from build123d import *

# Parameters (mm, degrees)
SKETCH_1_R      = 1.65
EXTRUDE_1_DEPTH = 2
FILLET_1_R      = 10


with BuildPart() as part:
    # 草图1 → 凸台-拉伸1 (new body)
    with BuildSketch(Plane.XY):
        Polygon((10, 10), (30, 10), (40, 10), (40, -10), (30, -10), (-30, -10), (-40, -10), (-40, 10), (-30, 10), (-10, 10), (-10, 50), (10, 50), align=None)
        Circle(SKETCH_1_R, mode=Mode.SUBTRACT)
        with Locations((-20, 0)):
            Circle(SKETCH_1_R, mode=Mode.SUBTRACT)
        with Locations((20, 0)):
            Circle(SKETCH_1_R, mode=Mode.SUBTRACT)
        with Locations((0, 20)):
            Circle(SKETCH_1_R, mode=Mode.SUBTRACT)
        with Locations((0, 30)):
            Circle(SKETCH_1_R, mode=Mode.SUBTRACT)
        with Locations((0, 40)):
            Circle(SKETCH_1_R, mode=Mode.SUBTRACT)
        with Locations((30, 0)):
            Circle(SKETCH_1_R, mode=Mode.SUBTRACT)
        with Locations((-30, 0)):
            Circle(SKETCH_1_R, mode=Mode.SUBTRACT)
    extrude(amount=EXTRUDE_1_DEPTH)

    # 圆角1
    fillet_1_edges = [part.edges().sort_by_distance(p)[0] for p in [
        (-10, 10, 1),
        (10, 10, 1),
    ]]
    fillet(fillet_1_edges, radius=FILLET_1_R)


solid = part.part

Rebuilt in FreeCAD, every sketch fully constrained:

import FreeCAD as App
import Part
import Sketcher
Q = App.Units.Quantity


def edges_at(feature, points):
    """Names of the edges that pass closest to the given points."""
    edges = feature.Shape.Edges
    near = lambda p: min(range(len(edges)), key=lambda i: edges[i].distToShape(Part.Vertex(*p))[0])
    return sorted({f"Edge{near(p) + 1}" for p in points})


def add_polygon(sketch, points):
    """Adds a closed chain of lines whose ends are joined by coincident constraints."""
    first, n = sketch.GeometryCount, len(points)
    for a, b in zip(points, points[1:] + points[:1]):
        sketch.addGeometry(Part.LineSegment(App.Vector(*a, 0), App.Vector(*b, 0)), False)
    for i in range(n):
        sketch.addConstraint(Sketcher.Constraint("Coincident", first + i, 2, first + (i + 1) % n, 1))

doc = App.newDocument("Part")
params = doc.addObject("Spreadsheet::Sheet", "Params")
for row, (alias, value) in enumerate([
    ("sketch1_diameter", "3.3 mm"),
    ("sketch1_width", "30 mm"),
    ("sketch1_width2", "20 mm"),
    ("sketch1_height", "40 mm"),
    ("pad1_length", "2 mm"),
    ("fillet_radius", "10 mm"),
], start=1):
    params.set(f"A{row}", alias)
    params.set(f"B{row}", "=" + value)
    params.setAlias(f"B{row}", alias)

body = doc.addObject("PartDesign::Body", "Body")

# Sketch on XY plane
sketch1 = body.newObject("Sketcher::SketchObject", "Sketch")
sketch1.AttachmentSupport = (doc.getObject("XY_Plane"), [""])
sketch1.MapMode = "FlatFace"
add_polygon(sketch1, [(40, 10), (10, 10), (10, 50), (-10, 50), (-10, 10), (-40, 10), (-40, -10), (40, -10)])  # lines 0-7
sketch1.addGeometry(Part.Circle(App.Vector(30, 0, 0), App.Vector(0, 0, 1), 1.65), False)  # 8
sketch1.addGeometry(Part.Circle(App.Vector(20, 0, 0), App.Vector(0, 0, 1), 1.65), False)  # 9
sketch1.addGeometry(Part.Circle(App.Vector(0, 0, 0), App.Vector(0, 0, 1), 1.65), False)  # 10
sketch1.addGeometry(Part.Circle(App.Vector(-20, 0, 0), App.Vector(0, 0, 1), 1.65), False)  # 11
sketch1.addGeometry(Part.Circle(App.Vector(-30, 0, 0), App.Vector(0, 0, 1), 1.65), False)  # 12
sketch1.addGeometry(Part.Circle(App.Vector(0, 20, 0), App.Vector(0, 0, 1), 1.65), False)  # 13
sketch1.addGeometry(Part.Circle(App.Vector(0, 30, 0), App.Vector(0, 0, 1), 1.65), False)  # 14
sketch1.addGeometry(Part.Circle(App.Vector(0, 40, 0), App.Vector(0, 0, 1), 1.65), False)  # 15
sketch1.addConstraint(Sketcher.Constraint("Horizontal", 0))
sketch1.addConstraint(Sketcher.Constraint("Vertical", 1))
sketch1.addConstraint(Sketcher.Constraint("Horizontal", 2))
sketch1.addConstraint(Sketcher.Constraint("Vertical", 3))
sketch1.addConstraint(Sketcher.Constraint("Horizontal", 4))
sketch1.addConstraint(Sketcher.Constraint("Vertical", 5))
sketch1.addConstraint(Sketcher.Constraint("Horizontal", 6))
sketch1.addConstraint(Sketcher.Constraint("Vertical", 7))
sketch1.addConstraint(Sketcher.Constraint("Coincident", 10, 3, -1, 1))
sketch1.addConstraint(Sketcher.Constraint("Equal", 8, 9))
sketch1.addConstraint(Sketcher.Constraint("Equal", 9, 10))
sketch1.addConstraint(Sketcher.Constraint("Equal", 10, 11))
sketch1.addConstraint(Sketcher.Constraint("Equal", 11, 12))
sketch1.addConstraint(Sketcher.Constraint("Equal", 12, 13))
sketch1.addConstraint(Sketcher.Constraint("Equal", 13, 14))
sketch1.addConstraint(Sketcher.Constraint("Equal", 14, 15))
sketch1.addConstraint(Sketcher.Constraint("Symmetric", 9, 3, 11, 3, -1, 1))
sketch1.addConstraint(Sketcher.Constraint("Symmetric", 8, 3, 12, 3, -1, 1))
sketch1.addConstraint(Sketcher.Constraint("Symmetric", 4, 2, 6, 2, -1, 1))
sketch1.addConstraint(Sketcher.Constraint("Symmetric", 0, 2, 3, 2, -2))
sketch1.addConstraint(Sketcher.Constraint("PointOnObject", 8, 3, -1))
sketch1.addConstraint(Sketcher.Constraint("PointOnObject", 9, 3, -1))
sketch1.addConstraint(Sketcher.Constraint("PointOnObject", 13, 3, -2))
sketch1.addConstraint(Sketcher.Constraint("PointOnObject", 14, 3, -2))
sketch1.addConstraint(Sketcher.Constraint("PointOnObject", 15, 3, -2))
sketch1.addConstraint(Sketcher.Constraint("Equal", 2, 5))
sketch1.addConstraint(Sketcher.Constraint("Diameter", 8, Q("3.3 mm")))
sketch1.addConstraint(Sketcher.Constraint("DistanceX", 0, 2, 0, 1, Q("30 mm")))
sketch1.addConstraint(Sketcher.Constraint("DistanceX", 2, 2, 2, 1, Q("20 mm")))
sketch1.addConstraint(Sketcher.Constraint("DistanceY", 1, 1, 1, 2, Q("40 mm")))
sketch1.addConstraint(Sketcher.Constraint("DistanceX", -1, 1, 8, 3, Q("30 mm")))
sketch1.addConstraint(Sketcher.Constraint("DistanceX", -1, 1, 9, 3, Q("20 mm")))
sketch1.addConstraint(Sketcher.Constraint("DistanceY", -1, 1, 13, 3, Q("20 mm")))
sketch1.addConstraint(Sketcher.Constraint("DistanceY", -1, 1, 14, 3, Q("30 mm")))
sketch1.addConstraint(Sketcher.Constraint("DistanceY", -1, 1, 15, 3, Q("40 mm")))
sketch1.setExpression("Constraints[34]", "Params.sketch1_diameter")
sketch1.setExpression("Constraints[35]", "Params.sketch1_width")
sketch1.setExpression("Constraints[36]", "Params.sketch1_width2")
sketch1.setExpression("Constraints[37]", "Params.sketch1_height")
pad1 = body.newObject("PartDesign::Pad", "Pad")
pad1.Profile = sketch1
pad1.setExpression("Length", "Params.pad1_length")
doc.recompute()

fillet = body.newObject("PartDesign::Fillet", "Fillet")
fillet.Base = (pad1, edges_at(pad1, [(-10, 10, 1), (10, 10, 1)]))
fillet.setExpression("Radius", "Params.fillet_radius")

doc.recompute()
